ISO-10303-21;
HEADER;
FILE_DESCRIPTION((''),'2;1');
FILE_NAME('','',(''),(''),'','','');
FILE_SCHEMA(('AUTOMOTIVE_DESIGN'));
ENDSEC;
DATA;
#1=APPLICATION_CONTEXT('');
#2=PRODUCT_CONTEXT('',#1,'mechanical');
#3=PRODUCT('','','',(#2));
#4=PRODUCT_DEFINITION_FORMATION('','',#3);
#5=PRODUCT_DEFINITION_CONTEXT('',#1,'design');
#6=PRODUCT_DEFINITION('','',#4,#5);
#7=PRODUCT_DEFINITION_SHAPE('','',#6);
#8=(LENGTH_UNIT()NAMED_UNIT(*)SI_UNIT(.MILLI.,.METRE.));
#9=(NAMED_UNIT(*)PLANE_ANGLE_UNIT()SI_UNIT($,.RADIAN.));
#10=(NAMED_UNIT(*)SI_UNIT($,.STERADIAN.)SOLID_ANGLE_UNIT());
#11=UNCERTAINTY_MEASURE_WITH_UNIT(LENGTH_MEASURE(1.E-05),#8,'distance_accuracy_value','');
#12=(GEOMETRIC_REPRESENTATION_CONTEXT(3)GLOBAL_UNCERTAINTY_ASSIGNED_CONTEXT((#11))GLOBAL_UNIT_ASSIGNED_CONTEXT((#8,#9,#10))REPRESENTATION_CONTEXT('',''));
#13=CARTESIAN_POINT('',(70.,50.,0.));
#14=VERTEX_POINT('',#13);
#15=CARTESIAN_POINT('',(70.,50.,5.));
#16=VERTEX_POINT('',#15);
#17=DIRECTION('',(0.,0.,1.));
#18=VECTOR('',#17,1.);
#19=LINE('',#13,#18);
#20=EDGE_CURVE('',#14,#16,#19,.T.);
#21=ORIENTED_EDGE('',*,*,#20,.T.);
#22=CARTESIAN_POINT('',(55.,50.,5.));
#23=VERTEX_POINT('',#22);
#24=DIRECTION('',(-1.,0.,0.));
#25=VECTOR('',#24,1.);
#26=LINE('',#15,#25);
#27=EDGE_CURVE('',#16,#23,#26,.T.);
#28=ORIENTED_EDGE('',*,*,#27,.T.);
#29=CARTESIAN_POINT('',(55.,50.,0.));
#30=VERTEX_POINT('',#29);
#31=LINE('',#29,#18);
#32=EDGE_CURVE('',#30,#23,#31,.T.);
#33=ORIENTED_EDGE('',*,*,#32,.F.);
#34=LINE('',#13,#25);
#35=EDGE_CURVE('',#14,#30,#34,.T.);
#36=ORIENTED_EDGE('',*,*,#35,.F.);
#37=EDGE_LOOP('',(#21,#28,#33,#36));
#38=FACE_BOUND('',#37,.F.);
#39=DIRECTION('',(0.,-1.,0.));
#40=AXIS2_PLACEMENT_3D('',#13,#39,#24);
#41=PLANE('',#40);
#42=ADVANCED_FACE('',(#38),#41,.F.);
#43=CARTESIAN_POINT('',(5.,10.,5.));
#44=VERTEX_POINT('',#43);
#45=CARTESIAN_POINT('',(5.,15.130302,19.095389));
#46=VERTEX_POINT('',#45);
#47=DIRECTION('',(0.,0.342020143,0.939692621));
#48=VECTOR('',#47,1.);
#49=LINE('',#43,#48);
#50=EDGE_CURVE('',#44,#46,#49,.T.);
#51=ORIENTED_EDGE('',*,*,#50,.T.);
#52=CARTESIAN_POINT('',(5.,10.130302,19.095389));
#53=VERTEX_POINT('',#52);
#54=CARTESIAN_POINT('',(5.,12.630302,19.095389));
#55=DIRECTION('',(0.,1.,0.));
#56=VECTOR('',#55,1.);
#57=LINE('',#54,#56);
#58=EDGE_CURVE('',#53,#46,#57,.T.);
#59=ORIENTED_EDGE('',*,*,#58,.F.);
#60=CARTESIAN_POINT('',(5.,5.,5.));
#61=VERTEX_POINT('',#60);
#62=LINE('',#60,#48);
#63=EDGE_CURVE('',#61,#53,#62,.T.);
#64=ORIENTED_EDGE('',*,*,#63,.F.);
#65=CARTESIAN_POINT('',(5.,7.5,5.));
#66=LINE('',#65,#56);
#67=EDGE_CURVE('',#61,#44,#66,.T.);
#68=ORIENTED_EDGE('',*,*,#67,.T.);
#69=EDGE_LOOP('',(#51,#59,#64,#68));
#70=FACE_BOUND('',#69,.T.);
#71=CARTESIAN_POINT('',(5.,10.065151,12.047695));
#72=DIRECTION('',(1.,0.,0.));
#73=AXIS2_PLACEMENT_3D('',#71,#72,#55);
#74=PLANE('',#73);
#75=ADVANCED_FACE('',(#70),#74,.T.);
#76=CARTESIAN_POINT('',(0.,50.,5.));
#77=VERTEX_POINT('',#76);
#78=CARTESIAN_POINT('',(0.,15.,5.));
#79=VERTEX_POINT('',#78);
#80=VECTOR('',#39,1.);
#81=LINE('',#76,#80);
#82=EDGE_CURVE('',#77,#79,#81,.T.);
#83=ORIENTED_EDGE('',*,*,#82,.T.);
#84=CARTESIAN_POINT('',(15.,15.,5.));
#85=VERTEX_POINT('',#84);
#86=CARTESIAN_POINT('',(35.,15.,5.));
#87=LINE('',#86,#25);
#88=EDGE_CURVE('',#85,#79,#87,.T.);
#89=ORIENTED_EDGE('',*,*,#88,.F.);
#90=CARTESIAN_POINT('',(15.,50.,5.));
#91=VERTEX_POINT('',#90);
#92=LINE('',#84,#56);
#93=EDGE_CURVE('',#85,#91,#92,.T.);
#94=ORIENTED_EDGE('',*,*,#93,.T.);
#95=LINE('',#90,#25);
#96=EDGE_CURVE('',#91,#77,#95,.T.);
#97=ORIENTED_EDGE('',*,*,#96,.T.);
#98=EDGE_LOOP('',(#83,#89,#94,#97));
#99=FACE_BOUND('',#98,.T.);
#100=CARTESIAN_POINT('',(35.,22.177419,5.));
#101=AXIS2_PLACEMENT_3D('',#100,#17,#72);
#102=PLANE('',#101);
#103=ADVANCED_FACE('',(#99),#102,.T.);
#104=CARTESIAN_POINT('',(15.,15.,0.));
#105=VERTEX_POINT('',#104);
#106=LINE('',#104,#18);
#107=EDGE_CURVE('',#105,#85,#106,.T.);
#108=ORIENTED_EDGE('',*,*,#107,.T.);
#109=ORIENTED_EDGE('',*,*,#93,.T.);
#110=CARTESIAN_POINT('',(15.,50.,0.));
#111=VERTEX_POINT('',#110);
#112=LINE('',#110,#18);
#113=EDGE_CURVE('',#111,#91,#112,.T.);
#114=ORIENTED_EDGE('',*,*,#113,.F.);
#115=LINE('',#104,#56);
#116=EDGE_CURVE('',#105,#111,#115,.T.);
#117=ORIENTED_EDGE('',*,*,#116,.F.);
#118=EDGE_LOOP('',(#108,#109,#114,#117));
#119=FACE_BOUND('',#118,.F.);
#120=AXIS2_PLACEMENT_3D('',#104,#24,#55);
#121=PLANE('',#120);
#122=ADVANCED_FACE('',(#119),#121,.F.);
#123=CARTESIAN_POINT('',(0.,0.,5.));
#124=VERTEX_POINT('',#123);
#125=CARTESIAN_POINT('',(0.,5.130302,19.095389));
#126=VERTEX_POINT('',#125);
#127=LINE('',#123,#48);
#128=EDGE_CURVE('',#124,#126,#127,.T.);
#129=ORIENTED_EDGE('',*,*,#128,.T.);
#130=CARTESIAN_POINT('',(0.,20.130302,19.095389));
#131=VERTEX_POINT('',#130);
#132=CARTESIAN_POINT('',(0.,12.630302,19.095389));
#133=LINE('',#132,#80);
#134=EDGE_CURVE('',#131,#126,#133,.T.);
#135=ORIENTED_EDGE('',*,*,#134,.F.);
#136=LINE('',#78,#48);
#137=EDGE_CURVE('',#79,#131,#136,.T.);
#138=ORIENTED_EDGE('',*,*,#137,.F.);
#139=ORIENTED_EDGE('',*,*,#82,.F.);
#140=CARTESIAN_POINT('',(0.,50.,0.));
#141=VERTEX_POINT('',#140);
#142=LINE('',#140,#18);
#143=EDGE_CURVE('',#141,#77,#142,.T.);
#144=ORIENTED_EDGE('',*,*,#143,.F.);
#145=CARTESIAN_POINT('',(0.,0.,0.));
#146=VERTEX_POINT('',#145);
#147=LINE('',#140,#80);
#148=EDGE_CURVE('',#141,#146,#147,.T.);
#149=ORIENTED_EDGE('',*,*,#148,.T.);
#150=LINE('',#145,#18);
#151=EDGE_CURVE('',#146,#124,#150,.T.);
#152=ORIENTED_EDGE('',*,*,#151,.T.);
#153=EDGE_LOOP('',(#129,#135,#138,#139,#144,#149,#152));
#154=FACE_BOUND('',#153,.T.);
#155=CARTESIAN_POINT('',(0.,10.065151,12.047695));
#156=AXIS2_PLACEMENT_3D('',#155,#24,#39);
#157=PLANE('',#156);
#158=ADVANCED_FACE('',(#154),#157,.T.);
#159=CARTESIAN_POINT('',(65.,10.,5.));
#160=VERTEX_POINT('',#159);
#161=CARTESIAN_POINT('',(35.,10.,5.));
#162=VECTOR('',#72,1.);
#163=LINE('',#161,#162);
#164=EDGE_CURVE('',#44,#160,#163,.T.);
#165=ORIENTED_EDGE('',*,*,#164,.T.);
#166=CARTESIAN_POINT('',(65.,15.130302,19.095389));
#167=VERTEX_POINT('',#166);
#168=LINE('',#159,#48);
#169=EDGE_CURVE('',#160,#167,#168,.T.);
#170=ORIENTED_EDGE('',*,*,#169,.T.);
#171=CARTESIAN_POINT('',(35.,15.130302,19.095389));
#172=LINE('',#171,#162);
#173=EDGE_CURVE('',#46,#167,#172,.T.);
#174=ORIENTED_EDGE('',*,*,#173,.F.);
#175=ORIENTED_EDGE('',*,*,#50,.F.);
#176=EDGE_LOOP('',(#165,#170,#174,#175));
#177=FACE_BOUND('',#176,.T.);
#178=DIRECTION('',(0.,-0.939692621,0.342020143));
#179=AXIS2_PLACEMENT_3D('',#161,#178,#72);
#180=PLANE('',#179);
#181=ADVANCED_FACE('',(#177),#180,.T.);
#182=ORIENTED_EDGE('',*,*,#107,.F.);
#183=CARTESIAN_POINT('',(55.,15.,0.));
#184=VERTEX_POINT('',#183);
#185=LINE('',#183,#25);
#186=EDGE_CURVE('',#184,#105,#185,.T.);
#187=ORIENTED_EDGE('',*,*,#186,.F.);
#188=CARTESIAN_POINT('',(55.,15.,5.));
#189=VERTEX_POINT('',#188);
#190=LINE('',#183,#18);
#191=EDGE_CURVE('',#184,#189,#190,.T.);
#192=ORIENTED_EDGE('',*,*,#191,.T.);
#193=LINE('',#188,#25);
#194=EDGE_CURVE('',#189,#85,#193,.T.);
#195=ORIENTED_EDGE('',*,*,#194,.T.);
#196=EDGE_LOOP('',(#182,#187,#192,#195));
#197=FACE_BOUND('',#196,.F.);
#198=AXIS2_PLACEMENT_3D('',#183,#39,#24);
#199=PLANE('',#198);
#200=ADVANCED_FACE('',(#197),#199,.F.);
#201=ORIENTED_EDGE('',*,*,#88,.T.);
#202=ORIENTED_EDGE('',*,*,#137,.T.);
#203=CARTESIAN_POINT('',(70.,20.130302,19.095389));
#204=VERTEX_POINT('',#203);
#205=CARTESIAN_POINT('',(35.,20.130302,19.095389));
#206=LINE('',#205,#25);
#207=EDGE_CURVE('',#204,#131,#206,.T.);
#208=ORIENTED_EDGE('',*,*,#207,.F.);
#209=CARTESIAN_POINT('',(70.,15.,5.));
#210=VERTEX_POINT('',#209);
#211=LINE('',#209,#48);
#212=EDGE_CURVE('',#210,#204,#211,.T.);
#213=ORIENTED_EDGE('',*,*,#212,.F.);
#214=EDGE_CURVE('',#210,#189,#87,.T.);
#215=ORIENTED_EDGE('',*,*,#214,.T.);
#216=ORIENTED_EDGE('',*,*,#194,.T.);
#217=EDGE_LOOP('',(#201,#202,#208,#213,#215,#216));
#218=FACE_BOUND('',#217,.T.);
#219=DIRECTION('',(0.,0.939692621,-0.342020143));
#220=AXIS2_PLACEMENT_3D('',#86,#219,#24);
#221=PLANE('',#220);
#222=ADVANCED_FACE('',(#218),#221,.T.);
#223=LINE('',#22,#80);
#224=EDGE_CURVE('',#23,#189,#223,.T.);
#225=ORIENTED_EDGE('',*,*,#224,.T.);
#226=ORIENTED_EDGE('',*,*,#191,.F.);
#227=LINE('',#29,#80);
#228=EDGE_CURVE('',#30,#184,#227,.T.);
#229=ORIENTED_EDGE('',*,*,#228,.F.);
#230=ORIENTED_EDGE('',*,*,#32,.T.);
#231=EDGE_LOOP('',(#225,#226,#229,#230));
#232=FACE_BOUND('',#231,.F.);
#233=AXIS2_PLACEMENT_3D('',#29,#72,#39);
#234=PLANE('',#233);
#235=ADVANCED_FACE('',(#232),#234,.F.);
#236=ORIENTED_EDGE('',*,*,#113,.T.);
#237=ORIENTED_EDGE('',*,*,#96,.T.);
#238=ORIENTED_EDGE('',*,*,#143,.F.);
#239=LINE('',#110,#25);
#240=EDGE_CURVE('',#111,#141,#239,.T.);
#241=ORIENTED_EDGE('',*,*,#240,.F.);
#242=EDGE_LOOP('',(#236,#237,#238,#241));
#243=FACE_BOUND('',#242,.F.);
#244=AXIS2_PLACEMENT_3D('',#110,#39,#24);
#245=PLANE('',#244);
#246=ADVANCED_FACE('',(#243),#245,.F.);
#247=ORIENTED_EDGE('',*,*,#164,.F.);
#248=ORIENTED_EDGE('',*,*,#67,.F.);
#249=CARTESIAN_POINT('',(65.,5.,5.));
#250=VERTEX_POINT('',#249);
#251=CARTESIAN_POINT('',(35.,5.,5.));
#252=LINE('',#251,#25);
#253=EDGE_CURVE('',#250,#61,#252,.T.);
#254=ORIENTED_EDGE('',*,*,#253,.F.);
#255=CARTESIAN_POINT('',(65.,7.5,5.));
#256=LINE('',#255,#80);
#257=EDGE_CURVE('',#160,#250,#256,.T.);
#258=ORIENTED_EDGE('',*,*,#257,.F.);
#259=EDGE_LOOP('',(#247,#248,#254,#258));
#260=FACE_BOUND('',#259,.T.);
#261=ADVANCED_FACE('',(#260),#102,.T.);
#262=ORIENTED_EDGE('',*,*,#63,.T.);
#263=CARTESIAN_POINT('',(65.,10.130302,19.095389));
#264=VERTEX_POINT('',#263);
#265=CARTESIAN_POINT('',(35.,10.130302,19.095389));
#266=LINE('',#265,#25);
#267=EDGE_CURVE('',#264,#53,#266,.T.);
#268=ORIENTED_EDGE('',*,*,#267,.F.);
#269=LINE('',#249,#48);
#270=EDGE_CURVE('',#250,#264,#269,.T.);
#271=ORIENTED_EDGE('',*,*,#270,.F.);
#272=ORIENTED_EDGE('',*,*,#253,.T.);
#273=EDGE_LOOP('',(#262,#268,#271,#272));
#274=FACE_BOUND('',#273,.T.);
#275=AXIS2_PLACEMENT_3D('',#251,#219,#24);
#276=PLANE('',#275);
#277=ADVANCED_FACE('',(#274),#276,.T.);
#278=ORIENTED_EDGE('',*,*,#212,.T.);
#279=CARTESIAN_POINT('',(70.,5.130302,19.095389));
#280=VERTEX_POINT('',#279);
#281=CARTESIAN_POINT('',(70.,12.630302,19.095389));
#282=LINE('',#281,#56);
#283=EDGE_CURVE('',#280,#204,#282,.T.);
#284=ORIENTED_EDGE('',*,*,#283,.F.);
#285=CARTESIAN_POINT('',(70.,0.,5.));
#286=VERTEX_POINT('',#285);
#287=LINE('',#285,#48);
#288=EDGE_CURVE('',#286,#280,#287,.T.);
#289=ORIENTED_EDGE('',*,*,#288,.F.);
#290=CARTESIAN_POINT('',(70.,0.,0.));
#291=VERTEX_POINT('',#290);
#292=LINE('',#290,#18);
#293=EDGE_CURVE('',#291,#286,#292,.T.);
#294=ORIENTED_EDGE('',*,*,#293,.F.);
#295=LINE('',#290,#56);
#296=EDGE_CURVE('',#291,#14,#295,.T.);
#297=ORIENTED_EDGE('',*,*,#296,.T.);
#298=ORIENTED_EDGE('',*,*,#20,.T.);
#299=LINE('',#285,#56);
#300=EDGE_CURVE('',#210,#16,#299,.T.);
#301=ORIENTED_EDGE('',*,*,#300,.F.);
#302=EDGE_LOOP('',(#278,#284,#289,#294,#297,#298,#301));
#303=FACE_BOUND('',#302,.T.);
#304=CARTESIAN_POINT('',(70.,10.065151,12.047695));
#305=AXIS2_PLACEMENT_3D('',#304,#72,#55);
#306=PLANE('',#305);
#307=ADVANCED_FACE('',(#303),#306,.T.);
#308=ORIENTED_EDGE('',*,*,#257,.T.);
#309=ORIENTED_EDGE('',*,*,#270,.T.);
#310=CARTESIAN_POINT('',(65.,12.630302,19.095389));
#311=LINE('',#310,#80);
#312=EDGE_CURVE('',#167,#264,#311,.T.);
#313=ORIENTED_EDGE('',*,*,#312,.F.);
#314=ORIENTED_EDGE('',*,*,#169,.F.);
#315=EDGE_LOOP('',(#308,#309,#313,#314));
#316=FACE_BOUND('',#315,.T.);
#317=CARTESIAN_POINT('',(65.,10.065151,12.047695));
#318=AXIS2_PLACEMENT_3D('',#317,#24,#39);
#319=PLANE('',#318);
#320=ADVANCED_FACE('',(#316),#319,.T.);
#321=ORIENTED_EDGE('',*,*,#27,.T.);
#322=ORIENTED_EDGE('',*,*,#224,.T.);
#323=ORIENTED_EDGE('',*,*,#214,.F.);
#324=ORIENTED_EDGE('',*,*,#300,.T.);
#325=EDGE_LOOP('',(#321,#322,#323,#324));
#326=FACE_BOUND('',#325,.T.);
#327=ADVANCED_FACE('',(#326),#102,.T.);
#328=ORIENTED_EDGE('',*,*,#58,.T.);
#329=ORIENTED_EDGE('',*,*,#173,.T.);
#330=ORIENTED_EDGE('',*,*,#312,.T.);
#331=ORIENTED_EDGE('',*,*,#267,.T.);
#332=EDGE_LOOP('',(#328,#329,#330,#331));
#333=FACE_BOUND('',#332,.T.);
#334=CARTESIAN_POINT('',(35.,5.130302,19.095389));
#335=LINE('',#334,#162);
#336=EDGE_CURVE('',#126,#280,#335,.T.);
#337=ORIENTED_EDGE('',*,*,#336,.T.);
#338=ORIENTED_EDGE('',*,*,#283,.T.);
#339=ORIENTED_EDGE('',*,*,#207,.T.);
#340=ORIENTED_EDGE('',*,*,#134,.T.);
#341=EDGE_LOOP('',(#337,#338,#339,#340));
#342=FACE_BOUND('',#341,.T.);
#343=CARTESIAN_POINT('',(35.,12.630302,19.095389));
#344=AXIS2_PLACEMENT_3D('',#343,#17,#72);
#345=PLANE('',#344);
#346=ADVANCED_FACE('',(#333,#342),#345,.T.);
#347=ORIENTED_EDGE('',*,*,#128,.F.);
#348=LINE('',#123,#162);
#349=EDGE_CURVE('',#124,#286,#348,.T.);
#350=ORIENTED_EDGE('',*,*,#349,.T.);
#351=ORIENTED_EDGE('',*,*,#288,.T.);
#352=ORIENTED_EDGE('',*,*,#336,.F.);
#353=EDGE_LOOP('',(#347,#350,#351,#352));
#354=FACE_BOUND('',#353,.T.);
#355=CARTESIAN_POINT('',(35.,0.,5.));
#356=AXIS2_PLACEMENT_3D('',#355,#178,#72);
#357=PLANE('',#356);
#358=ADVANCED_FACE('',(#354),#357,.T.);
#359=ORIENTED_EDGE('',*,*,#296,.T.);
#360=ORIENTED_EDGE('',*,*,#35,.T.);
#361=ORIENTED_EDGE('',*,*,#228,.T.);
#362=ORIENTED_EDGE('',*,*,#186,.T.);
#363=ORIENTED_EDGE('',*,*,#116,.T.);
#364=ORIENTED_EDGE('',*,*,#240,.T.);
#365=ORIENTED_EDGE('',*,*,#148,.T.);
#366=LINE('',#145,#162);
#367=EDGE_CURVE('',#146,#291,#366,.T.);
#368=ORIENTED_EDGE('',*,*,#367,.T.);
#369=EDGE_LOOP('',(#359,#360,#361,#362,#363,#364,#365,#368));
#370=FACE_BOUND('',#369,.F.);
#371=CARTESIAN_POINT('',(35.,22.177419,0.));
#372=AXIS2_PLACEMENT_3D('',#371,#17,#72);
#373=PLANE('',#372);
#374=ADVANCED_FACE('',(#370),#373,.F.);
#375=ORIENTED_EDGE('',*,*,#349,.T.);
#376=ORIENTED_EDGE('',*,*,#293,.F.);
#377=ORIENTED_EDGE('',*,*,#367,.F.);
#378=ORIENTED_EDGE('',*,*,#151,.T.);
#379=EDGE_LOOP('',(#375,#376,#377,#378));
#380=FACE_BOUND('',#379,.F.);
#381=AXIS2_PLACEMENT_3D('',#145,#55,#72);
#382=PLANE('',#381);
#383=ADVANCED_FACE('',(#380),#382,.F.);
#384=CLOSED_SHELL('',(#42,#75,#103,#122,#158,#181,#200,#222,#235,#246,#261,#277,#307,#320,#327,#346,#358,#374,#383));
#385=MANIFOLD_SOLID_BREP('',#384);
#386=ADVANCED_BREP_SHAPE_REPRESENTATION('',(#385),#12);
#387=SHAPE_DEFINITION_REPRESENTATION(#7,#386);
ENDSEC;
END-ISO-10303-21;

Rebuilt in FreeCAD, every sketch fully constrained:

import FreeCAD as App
import Part
import Sketcher
from FreeCAD import Vector


def add_polygon(sketch, points):
    """Adds a closed chain of lines whose ends are joined by coincident constraints."""
    first, n = sketch.GeometryCount, len(points)
    for a, b in zip(points, points[1:] + points[:1]):
        sketch.addGeometry(Part.LineSegment(App.Vector(*a, 0), App.Vector(*b, 0)), False)
    for i in range(n):
        sketch.addConstraint(Sketcher.Constraint("Coincident", first + i, 2, first + (i + 1) % n, 1))

doc = App.newDocument("Part")
body = doc.addObject("PartDesign::Body", "Body")

# Sketch on XY plane
sketch1 = body.newObject("Sketcher::SketchObject", "Sketch")
sketch1.AttachmentSupport = (doc.getObject("XY_Plane"), [""])
sketch1.MapMode = "FlatFace"
add_polygon(sketch1, [(0, 50), (0, 0), (70, 0), (70, 50), (55, 50), (55, 15), (15, 15), (15, 50)])  # lines 0-7
sketch1.addConstraint([
    Sketcher.Constraint("Vertical", 0),
    Sketcher.Constraint("Horizontal", 1),
    Sketcher.Constraint("Vertical", 2),
    Sketcher.Constraint("Horizontal", 3),
    Sketcher.Constraint("Vertical", 4),
    Sketcher.Constraint("Horizontal", 5),
    Sketcher.Constraint("Vertical", 6),
    Sketcher.Constraint("Horizontal", 7),
    Sketcher.Constraint("Coincident", 0, 2, -1, 1),
    Sketcher.Constraint("Horizontal", 3, 2, 6, 2),
    Sketcher.Constraint("Equal", 3, 7),
    Sketcher.Constraint("DistanceX", 1, 1, 1, 2, 70.0),
    Sketcher.Constraint("DistanceX", 3, 2, 3, 1, 15.0),
    Sketcher.Constraint("DistanceY", 0, 2, 0, 1, 50.0),
    Sketcher.Constraint("DistanceY", 4, 2, 4, 1, 35.0),
])
pad1 = body.newObject("PartDesign::Pad", "Pad")
pad1.Profile = sketch1
pad1.Length = 5

# Sketch on XY plane
sketch2 = body.newObject("Sketcher::SketchObject", "Sketch001")
sketch2.AttachmentSupport = (doc.getObject("XY_Plane"), [""])
sketch2.MapMode = "FlatFace"
sketch2.AttachmentOffset = App.Placement(Vector(0, 0, 5), App.Rotation())
add_polygon(sketch2, [(0, 15), (0, 0), (70, 0), (70, 15)])  # lines 0-3
add_polygon(sketch2, [(65, 5), (5, 5), (5, 10), (65, 10)])  # lines 4-7
sketch2.addConstraint([
    Sketcher.Constraint("Vertical", 0),
    Sketcher.Constraint("Horizontal", 1),
    Sketcher.Constraint("Vertical", 2),
    Sketcher.Constraint("Horizontal", 3),
    Sketcher.Constraint("Horizontal", 4),
    Sketcher.Constraint("Vertical", 5),
    Sketcher.Constraint("Horizontal", 6),
    Sketcher.Constraint("Vertical", 7),
    Sketcher.Constraint("Coincident", 0, 2, -1, 1),
    Sketcher.Constraint("DistanceX", 1, 1, 1, 2, 70.0),
    Sketcher.Constraint("DistanceX", 4, 2, 4, 1, 60.0),
    Sketcher.Constraint("DistanceY", 0, 2, 0, 1, 15.0),
    Sketcher.Constraint("DistanceY", 5, 1, 5, 2, 5.0),
    Sketcher.Constraint("DistanceX", -1, 1, 4, 2, 5.0),
    Sketcher.Constraint("DistanceY", -1, 1, 4, 2, 5.0),
])

# Sketch on an angled plane
sketch3 = body.newObject("Sketcher::SketchObject", "Sketch002")
sketch3.Placement = App.Placement(Vector(0, -1.606969, 0.584889), App.Rotation(Vector(0, -0.342020143, -0.939692621), Vector(1, 0, 0), Vector(0, -0.939692621, 0.342020143), "ZXY"))
sketch3.addGeometry(Part.LineSegment(Vector(-4.698463, 0, 0), Vector(-19.698463, 0, 0)), False)
sketch3.addConstraint([
    Sketcher.Constraint("Horizontal", 0),
    Sketcher.Constraint("PointOnObject", 0, 1, -1),
    Sketcher.Constraint("DistanceX", 0, 2, 0, 1, 15.0),
    Sketcher.Constraint("DistanceX", 0, 1, -1, 1, 4.698463),
])
doc.recompute()

additivepipe = body.newObject("PartDesign::AdditivePipe", "AdditivePipe")
additivepipe.Profile = sketch2
additivepipe.Spine = (sketch3, ["Edge1"])

doc.recompute()
